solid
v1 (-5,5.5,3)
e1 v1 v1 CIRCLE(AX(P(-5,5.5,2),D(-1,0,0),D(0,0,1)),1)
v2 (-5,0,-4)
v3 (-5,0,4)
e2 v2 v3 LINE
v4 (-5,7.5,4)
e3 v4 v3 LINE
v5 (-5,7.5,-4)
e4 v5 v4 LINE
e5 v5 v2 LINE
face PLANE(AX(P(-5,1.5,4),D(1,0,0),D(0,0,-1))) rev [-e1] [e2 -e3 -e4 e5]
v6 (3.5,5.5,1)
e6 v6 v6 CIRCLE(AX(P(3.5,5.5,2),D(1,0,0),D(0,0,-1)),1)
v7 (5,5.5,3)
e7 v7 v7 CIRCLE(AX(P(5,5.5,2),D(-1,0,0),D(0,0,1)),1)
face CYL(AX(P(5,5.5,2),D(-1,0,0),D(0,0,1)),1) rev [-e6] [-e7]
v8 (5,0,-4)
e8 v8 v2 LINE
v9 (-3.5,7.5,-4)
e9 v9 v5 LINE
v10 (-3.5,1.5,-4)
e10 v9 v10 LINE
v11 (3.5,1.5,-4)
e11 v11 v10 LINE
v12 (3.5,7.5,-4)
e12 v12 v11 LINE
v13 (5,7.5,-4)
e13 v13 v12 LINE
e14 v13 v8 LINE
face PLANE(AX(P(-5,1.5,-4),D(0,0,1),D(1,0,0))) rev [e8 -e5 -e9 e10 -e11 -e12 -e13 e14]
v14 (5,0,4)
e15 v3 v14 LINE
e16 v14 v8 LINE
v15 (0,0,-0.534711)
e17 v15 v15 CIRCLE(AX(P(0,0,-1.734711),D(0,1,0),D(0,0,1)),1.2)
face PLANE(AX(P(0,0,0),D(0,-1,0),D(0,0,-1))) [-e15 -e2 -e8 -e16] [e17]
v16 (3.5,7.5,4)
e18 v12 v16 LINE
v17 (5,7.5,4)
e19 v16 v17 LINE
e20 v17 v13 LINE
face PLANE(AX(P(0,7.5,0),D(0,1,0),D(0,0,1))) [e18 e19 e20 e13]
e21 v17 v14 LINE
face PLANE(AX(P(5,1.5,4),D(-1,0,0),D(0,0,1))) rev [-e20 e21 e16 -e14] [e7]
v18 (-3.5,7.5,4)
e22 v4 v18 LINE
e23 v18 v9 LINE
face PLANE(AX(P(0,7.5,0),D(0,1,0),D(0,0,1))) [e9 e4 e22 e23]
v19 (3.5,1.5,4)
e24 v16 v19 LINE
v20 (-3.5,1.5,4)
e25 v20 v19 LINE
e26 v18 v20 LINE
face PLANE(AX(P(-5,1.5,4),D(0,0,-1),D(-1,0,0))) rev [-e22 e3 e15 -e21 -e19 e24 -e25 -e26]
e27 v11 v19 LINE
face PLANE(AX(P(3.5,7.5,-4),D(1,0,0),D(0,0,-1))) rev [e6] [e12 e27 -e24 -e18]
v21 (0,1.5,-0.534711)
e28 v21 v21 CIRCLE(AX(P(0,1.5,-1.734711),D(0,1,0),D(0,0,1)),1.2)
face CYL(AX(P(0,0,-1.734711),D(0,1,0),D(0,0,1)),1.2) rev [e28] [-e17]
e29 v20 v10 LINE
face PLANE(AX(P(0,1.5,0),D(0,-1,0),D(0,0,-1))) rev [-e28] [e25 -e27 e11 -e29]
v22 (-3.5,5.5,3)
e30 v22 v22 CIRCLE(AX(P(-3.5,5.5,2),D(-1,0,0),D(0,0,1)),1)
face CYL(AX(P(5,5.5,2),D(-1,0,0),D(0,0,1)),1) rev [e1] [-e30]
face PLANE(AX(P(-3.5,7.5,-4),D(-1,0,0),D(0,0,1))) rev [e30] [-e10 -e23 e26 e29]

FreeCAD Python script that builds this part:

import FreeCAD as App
import Part
import Sketcher
Q = App.Units.Quantity

doc = App.newDocument("Part")
body = doc.addObject("PartDesign::Body", "Body")

sketch1 = doc.addObject("Sketcher::SketchObject", "Sketch")
body.addObject(sketch1)
sketch1.AttachmentSupport = (doc.XZ_Plane, [""])
sketch1.MapMode = "FlatFace"
sketch1.addGeometry(Part.LineSegment(App.Vector(-5, -4, 0), App.Vector(-5, 4, 0)), False)
sketch1.addGeometry(Part.LineSegment(App.Vector(-5, 4, 0), App.Vector(5, 4, 0)), False)
sketch1.addGeometry(Part.LineSegment(App.Vector(5, 4, 0), App.Vector(5, -4, 0)), False)
sketch1.addGeometry(Part.LineSegment(App.Vector(5, -4, 0), App.Vector(-5, -4, 0)), False)
sketch1.addConstraint(Sketcher.Constraint("Coincident", 0, 2, 1, 1))
sketch1.addConstraint(Sketcher.Constraint("Coincident", 1, 2, 2, 1))
sketch1.addConstraint(Sketcher.Constraint("Coincident", 2, 2, 3, 1))
sketch1.addConstraint(Sketcher.Constraint("Coincident", 3, 2, 0, 1))
sketch1.addConstraint(Sketcher.Constraint("Vertical", 0))
sketch1.addConstraint(Sketcher.Constraint("Horizontal", 1))
sketch1.addConstraint(Sketcher.Constraint("Vertical", 2))
sketch1.addConstraint(Sketcher.Constraint("Horizontal", 3))
sketch1.addConstraint(Sketcher.Constraint("Symmetric", 0, 2, 2, 2, -1, 1))
sketch1.addConstraint(Sketcher.Constraint("DistanceX", 1, 1, 1, 2, Q("10 mm")))
sketch1.addConstraint(Sketcher.Constraint("DistanceY", 0, 1, 0, 2, Q("8 mm")))
pad1 = doc.addObject("PartDesign::Pad", "Pad")
body.addObject(pad1)
pad1.Profile = sketch1
pad1.Length = 1.5
pad1.Reversed = True

sketch2 = doc.addObject("Sketcher::SketchObject", "Sketch001")
body.addObject(sketch2)
sketch2.AttachmentSupport = (doc.XZ_Plane, [""])
sketch2.MapMode = "FlatFace"
sketch2.AttachmentOffset = App.Placement(App.Vector(0, 0, -1.5), App.Rotation())
sketch2.addGeometry(Part.LineSegment(App.Vector(-5, -4, 0), App.Vector(-5, 4, 0)), False)
sketch2.addGeometry(Part.LineSegment(App.Vector(-5, 4, 0), App.Vector(-3.5, 4, 0)), False)
sketch2.addGeometry(Part.LineSegment(App.Vector(-3.5, 4, 0), App.Vector(-3.5, -4, 0)), False)
sketch2.addGeometry(Part.LineSegment(App.Vector(-3.5, -4, 0), App.Vector(-5, -4, 0)), False)
sketch2.addGeometry(Part.LineSegment(App.Vector(3.5, -4, 0), App.Vector(3.5, 4, 0)), False)
sketch2.addGeometry(Part.LineSegment(App.Vector(3.5, 4, 0), App.Vector(5, 4, 0)), False)
sketch2.addGeometry(Part.LineSegment(App.Vector(5, 4, 0), App.Vector(5, -4, 0)), False)
sketch2.addGeometry(Part.LineSegment(App.Vector(5, -4, 0), App.Vector(3.5, -4, 0)), False)
sketch2.addConstraint(Sketcher.Constraint("Coincident", 0, 2, 1, 1))
sketch2.addConstraint(Sketcher.Constraint("Coincident", 1, 2, 2, 1))
sketch2.addConstraint(Sketcher.Constraint("Coincident", 2, 2, 3, 1))
sketch2.addConstraint(Sketcher.Constraint("Coincident", 3, 2, 0, 1))
sketch2.addConstraint(Sketcher.Constraint("Coincident", 4, 2, 5, 1))
sketch2.addConstraint(Sketcher.Constraint("Coincident", 5, 2, 6, 1))
sketch2.addConstraint(Sketcher.Constraint("Coincident", 6, 2, 7, 1))
sketch2.addConstraint(Sketcher.Constraint("Coincident", 7, 2, 4, 1))
sketch2.addConstraint(Sketcher.Constraint("Vertical", 0))
sketch2.addConstraint(Sketcher.Constraint("Horizontal", 1))
sketch2.addConstraint(Sketcher.Constraint("Vertical", 2))
sketch2.addConstraint(Sketcher.Constraint("Horizontal", 3))
sketch2.addConstraint(Sketcher.Constraint("Vertical", 4))
sketch2.addConstraint(Sketcher.Constraint("Horizontal", 5))
sketch2.addConstraint(Sketcher.Constraint("Vertical", 6))
sketch2.addConstraint(Sketcher.Constraint("Horizontal", 7))
sketch2.addConstraint(Sketcher.Constraint("Symmetric", 2, 2, 4, 2, -1, 1))
sketch2.addConstraint(Sketcher.Constraint("Symmetric", 0, 2, 6, 2, -1, 1))
sketch2.addConstraint(Sketcher.Constraint("Horizontal", 1, 2, 4, 2))
sketch2.addConstraint(Sketcher.Constraint("DistanceY", 0, 1, 0, 2, Q("8 mm")))
sketch2.addConstraint(Sketcher.Constraint("DistanceX", 1, 1, 1, 2, Q("1.5 mm")))
sketch2.addConstraint(Sketcher.Constraint("DistanceX", 0, 2, -1, 1, Q("5 mm")))
pad2 = doc.addObject("PartDesign::Pad", "Pad001")
body.addObject(pad2)
pad2.Profile = sketch2
pad2.Length = 6
pad2.Reversed = True

sketch3 = doc.addObject("Sketcher::SketchObject", "Sketch002")
body.addObject(sketch3)
sketch3.AttachmentSupport = (doc.XZ_Plane, [""])
sketch3.MapMode = "FlatFace"
sketch3.AttachmentOffset = App.Placement(App.Vector(0, 0, -1.5), App.Rotation())
sketch3.addGeometry(Part.Circle(App.Vector(0, -1.7, 0), App.Vector(0, 0, 1), 1.2), False)
sketch3.addConstraint(Sketcher.Constraint("PointOnObject", 0, 3, -2))
sketch3.addConstraint(Sketcher.Constraint("Diameter", 0, Q("2.4 mm")))
sketch3.addConstraint(Sketcher.Constraint("DistanceY", 0, 3, -1, 1, Q("1.734711 mm")))
pocket1 = doc.addObject("PartDesign::Pocket", "Pocket")
body.addObject(pocket1)
pocket1.Profile = sketch3
pocket1.Type = "ThroughAll"
pocket1.Reversed = True

sketch4 = doc.addObject("Sketcher::SketchObject", "Sketch003")
body.addObject(sketch4)
sketch4.AttachmentSupport = (doc.YZ_Plane, [""])
sketch4.MapMode = "FlatFace"
sketch4.AttachmentOffset = App.Placement(App.Vector(0, 0, -5), App.Rotation())
sketch4.addGeometry(Part.Circle(App.Vector(5.5, 2, 0), App.Vector(0, 0, 1), 1), False)
sketch4.addConstraint(Sketcher.Constraint("Diameter", 0, Q("2 mm")))
sketch4.addConstraint(Sketcher.Constraint("DistanceY", -1, 1, 0, 3, Q("2 mm")))
sketch4.addConstraint(Sketcher.Constraint("DistanceX", -1, 1, 0, 3, Q("5.5 mm")))
pocket2 = doc.addObject("PartDesign::Pocket", "Pocket001")
body.addObject(pocket2)
pocket2.Profile = sketch4
pocket2.Type = "ThroughAll"
pocket2.Reversed = True

doc.recompute()
